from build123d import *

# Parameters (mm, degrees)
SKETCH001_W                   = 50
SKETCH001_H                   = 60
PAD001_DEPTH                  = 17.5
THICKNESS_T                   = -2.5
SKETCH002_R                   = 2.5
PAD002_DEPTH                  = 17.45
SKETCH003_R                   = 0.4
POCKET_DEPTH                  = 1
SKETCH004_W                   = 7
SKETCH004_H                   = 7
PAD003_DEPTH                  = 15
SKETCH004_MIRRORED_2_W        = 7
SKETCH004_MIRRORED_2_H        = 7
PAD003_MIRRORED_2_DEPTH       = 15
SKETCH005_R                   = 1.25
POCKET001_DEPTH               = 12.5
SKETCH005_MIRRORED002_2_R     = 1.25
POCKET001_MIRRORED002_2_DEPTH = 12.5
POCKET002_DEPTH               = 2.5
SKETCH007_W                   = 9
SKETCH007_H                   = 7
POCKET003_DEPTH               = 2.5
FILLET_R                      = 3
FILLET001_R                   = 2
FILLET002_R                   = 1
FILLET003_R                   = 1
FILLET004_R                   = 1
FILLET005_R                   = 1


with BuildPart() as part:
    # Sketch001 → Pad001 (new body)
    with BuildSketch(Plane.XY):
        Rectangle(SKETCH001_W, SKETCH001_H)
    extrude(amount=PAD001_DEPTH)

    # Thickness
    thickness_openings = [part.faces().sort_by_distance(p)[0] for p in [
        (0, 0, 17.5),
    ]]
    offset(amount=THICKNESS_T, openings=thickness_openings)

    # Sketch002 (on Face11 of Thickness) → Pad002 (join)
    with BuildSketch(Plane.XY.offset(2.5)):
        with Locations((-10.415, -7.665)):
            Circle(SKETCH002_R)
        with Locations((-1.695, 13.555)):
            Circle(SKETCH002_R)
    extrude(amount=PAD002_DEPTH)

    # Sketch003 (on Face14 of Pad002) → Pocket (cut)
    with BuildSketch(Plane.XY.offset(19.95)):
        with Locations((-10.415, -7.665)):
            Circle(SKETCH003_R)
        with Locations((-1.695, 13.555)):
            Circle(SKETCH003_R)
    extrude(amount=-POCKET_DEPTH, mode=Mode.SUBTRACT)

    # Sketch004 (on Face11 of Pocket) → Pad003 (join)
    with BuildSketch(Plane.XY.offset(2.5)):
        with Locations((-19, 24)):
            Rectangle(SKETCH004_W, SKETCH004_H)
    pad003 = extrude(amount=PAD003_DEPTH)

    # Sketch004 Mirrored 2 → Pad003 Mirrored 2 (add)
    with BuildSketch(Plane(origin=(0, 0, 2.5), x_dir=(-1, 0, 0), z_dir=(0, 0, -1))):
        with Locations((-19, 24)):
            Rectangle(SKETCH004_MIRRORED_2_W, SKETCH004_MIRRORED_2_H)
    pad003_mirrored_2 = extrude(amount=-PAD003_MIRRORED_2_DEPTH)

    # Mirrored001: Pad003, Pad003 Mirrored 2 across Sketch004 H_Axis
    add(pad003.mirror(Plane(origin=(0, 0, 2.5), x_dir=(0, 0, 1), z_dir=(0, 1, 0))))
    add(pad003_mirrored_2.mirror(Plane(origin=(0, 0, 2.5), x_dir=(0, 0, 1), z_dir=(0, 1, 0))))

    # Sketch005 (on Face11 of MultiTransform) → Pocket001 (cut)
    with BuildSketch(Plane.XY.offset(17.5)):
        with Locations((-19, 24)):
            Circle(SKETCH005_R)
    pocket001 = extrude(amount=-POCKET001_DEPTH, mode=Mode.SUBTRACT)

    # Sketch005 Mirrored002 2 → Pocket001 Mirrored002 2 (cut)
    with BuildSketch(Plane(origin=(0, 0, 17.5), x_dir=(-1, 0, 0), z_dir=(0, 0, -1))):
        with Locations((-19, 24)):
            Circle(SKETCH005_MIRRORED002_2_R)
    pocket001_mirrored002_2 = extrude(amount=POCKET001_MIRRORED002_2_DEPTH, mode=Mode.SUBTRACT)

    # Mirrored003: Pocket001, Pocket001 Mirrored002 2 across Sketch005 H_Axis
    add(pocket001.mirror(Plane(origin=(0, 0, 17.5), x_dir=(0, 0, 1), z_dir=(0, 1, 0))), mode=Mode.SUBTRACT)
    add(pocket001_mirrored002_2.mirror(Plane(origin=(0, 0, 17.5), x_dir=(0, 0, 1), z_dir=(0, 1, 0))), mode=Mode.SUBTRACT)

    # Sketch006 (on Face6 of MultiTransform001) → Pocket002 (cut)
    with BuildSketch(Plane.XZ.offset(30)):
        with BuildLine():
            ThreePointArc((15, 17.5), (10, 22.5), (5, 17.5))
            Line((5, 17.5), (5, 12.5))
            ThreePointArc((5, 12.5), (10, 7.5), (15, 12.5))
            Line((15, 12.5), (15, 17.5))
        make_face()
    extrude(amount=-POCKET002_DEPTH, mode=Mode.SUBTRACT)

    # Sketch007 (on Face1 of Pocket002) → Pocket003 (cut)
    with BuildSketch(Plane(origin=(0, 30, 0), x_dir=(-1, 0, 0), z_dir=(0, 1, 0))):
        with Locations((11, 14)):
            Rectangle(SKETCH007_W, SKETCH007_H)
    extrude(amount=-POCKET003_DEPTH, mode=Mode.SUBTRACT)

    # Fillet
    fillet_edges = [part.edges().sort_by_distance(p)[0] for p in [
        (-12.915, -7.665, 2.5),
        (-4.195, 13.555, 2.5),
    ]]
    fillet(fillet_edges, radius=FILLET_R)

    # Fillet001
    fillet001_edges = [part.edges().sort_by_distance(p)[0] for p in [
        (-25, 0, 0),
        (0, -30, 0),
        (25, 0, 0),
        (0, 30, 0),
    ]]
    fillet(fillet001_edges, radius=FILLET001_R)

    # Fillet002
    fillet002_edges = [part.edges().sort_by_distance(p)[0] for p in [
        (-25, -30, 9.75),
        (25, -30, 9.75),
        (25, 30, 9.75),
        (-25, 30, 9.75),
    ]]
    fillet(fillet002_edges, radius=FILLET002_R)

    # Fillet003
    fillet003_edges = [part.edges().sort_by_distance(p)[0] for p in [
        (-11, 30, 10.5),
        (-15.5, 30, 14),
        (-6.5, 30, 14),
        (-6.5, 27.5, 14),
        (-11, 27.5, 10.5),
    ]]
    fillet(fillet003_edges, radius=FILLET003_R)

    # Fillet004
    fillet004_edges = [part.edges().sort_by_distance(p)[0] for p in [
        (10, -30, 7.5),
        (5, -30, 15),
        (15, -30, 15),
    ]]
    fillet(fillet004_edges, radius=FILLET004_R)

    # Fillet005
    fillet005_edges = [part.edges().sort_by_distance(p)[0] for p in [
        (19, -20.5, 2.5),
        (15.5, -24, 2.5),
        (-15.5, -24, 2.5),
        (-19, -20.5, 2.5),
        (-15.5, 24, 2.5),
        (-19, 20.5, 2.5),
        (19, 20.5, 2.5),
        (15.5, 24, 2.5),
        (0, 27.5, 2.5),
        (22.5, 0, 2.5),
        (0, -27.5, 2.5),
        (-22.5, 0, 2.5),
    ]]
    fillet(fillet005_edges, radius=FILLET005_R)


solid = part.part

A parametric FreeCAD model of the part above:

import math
import FreeCAD as App
import Part
import Sketcher


def edges_at(feature, points):
    """Names of the edges that pass closest to the given points."""
    edges = feature.Shape.Edges
    near = lambda p: min(range(len(edges)), key=lambda i: edges[i].distToShape(Part.Vertex(*p))[0])
    return sorted({f"Edge{near(p) + 1}" for p in points})


def faces_at(feature, points):
    """Names of the faces that lie closest to the given points."""
    faces = feature.Shape.Faces
    near = lambda p: min(range(len(faces)), key=lambda i: faces[i].distToShape(Part.Vertex(*p))[0])
    return sorted({f"Face{near(p) + 1}" for p in points})

doc = App.newDocument("Part")
params = doc.addObject("Spreadsheet::Sheet", "Params")
for row, (alias, value) in enumerate([
    ("sketch1_width", "50 mm"),
    ("sketch1_height", "60 mm"),
    ("pad1_length", "17.5 mm"),
    ("thickness_wall", "2.5 mm"),
    ("sketch2_diameter", "5 mm"),
    ("pad2_length", "17.45 mm"),
    ("sketch3_diameter", "0.8 mm"),
    ("pocket1_length", "1 mm"),
    ("sketch4_width", "7 mm"),
    ("pad3_length", "15 mm"),
    ("sketch5_width", "7 mm"),
    ("pad4_length", "15 mm"),
    ("sketch6_diameter", "2.5 mm"),
    ("pocket2_length", "12.5 mm"),
    ("sketch7_diameter", "2.5 mm"),
    ("pocket3_length", "12.5 mm"),
    ("sketch8_radius", "5 mm"),
    ("sketch8_height", "5 mm"),
    ("pocket4_length", "2.5 mm"),
    ("sketch9_width", "9 mm"),
    ("sketch9_height", "7 mm"),
    ("pocket5_length", "2.5 mm"),
    ("fillet_radius", "3 mm"),
    ("fillet2_radius", "2 mm"),
    ("fillet3_radius", "1 mm"),
    ("fillet4_radius", "1 mm"),
    ("fillet5_radius", "1 mm"),
    ("fillet6_radius", "1 mm"),
], start=1):
    params.set(f"A{row}", alias)
    params.set(f"B{row}", "=" + value)
    params.setAlias(f"B{row}", alias)

body = doc.addObject("PartDesign::Body", "Body")

# Sketch on XY plane
sketch1 = doc.addObject("Sketcher::SketchObject", "Sketch")
body.addObject(sketch1)
sketch1.AttachmentSupport = (doc.XY_Plane, [""])
sketch1.MapMode = "FlatFace"
sketch1.addGeometry([
    Part.LineSegment(App.Vector(-25, 30, 0), App.Vector(-25, -30, 0)),
    Part.LineSegment(App.Vector(-25, -30, 0), App.Vector(25, -30, 0)),
    Part.LineSegment(App.Vector(25, -30, 0), App.Vector(25, 30, 0)),
    Part.LineSegment(App.Vector(25, 30, 0), App.Vector(-25, 30, 0)),
], False)
sketch1.addConstraint([
    Sketcher.Constraint("Coincident", 0, 2, 1, 1),
    Sketcher.Constraint("Coincident", 1, 2, 2, 1),
    Sketcher.Constraint("Coincident", 2, 2, 3, 1),
    Sketcher.Constraint("Coincident", 3, 2, 0, 1),
    Sketcher.Constraint("Vertical", 0),
    Sketcher.Constraint("Horizontal", 1),
    Sketcher.Constraint("Vertical", 2),
    Sketcher.Constraint("Horizontal", 3),
    Sketcher.Constraint("Symmetric", 0, 2, 2, 2, -1, 1),
    Sketcher.Constraint("DistanceX", 1, 1, 1, 2, 50.0),
    Sketcher.Constraint("DistanceY", 0, 2, 0, 1, 60.0),
])
sketch1.setExpression("Constraints[9]", "Params.sketch1_width")
sketch1.setExpression("Constraints[10]", "Params.sketch1_height")
pad1 = doc.addObject("PartDesign::Pad", "Pad")
body.addObject(pad1)
pad1.Profile = sketch1
pad1.setExpression("Length", "Params.pad1_length")
doc.recompute()

thickness = doc.addObject("PartDesign::Thickness", "Thickness")
body.addObject(thickness)
thickness.Base = (pad1, faces_at(pad1, [(0, 0, 17.5)]))
thickness.setExpression("Value", "Params.thickness_wall")
thickness.Reversed = True
thickness.Join = "Arc"

# Sketch on XY plane
sketch2 = doc.addObject("Sketcher::SketchObject", "Sketch001")
body.addObject(sketch2)
sketch2.AttachmentSupport = (doc.XY_Plane, [""])
sketch2.MapMode = "FlatFace"
sketch2.AttachmentOffset = App.Placement(App.Vector(0, 0, 2.5), App.Rotation())
sketch2.addGeometry([
    Part.Circle(App.Vector(-10.415, -7.665, 0), App.Vector(0, 0, 1), 2.5),
    Part.Circle(App.Vector(-1.695, 13.555, 0), App.Vector(0, 0, 1), 2.5),
], False)
sketch2.addConstraint([
    Sketcher.Constraint("Equal", 0, 1),
    Sketcher.Constraint("Diameter", 0, 5.0),
    Sketcher.Constraint("DistanceX", 0, 3, 1, 3, 8.72),
    Sketcher.Constraint("DistanceY", 0, 3, 1, 3, 21.22),
    Sketcher.Constraint("DistanceX", 0, 3, -1, 1, 10.415),
    Sketcher.Constraint("DistanceY", 0, 3, -1, 1, 7.665),
])
sketch2.setExpression("Constraints[1]", "Params.sketch2_diameter")
pad2 = doc.addObject("PartDesign::Pad", "Pad001")
body.addObject(pad2)
pad2.Profile = sketch2
pad2.setExpression("Length", "Params.pad2_length")

# Sketch on XY plane
sketch3 = doc.addObject("Sketcher::SketchObject", "Sketch002")
body.addObject(sketch3)
sketch3.AttachmentSupport = (doc.XY_Plane, [""])
sketch3.MapMode = "FlatFace"
sketch3.AttachmentOffset = App.Placement(App.Vector(0, 0, 19.95), App.Rotation())
sketch3.addGeometry([
    Part.Circle(App.Vector(-10.415, -7.665, 0), App.Vector(0, 0, 1), 0.4),
    Part.Circle(App.Vector(-1.695, 13.555, 0), App.Vector(0, 0, 1), 0.4),
], False)
sketch3.addConstraint([
    Sketcher.Constraint("Equal", 0, 1),
    Sketcher.Constraint("Diameter", 0, 0.8),
    Sketcher.Constraint("DistanceX", 0, 3, 1, 3, 8.72),
    Sketcher.Constraint("DistanceY", 0, 3, 1, 3, 21.22),
    Sketcher.Constraint("DistanceX", 0, 3, -1, 1, 10.415),
    Sketcher.Constraint("DistanceY", 0, 3, -1, 1, 7.665),
])
sketch3.setExpression("Constraints[1]", "Params.sketch3_diameter")
pocket1 = doc.addObject("PartDesign::Pocket", "Pocket")
body.addObject(pocket1)
pocket1.Profile = sketch3
pocket1.setExpression("Length", "Params.pocket1_length")

# Sketch on XY plane
sketch4 = doc.addObject("Sketcher::SketchObject", "Sketch003")
body.addObject(sketch4)
sketch4.AttachmentSupport = (doc.XY_Plane, [""])
sketch4.MapMode = "FlatFace"
sketch4.AttachmentOffset = App.Placement(App.Vector(0, 0, 2.5), App.Rotation())
sketch4.addGeometry([
    Part.LineSegment(App.Vector(-22.5, 27.5, 0), App.Vector(-22.5, 20.5, 0)),
    Part.LineSegment(App.Vector(-22.5, 20.5, 0), App.Vector(-15.5, 20.5, 0)),
    Part.LineSegment(App.Vector(-15.5, 20.5, 0), App.Vector(-15.5, 27.5, 0)),
    Part.LineSegment(App.Vector(-15.5, 27.5, 0), App.Vector(-22.5, 27.5, 0)),
], False)
sketch4.addConstraint([
    Sketcher.Constraint("Coincident", 0, 2, 1, 1),
    Sketcher.Constraint("Coincident", 1, 2, 2, 1),
    Sketcher.Constraint("Coincident", 2, 2, 3, 1),
    Sketcher.Constraint("Coincident", 3, 2, 0, 1),
    Sketcher.Constraint("Vertical", 0),
    Sketcher.Constraint("Horizontal", 1),
    Sketcher.Constraint("Vertical", 2),
    Sketcher.Constraint("Horizontal", 3),
    Sketcher.Constraint("Equal", 3, 0),
    Sketcher.Constraint("DistanceX", 1, 1, 1, 2, 7.0),
    Sketcher.Constraint("DistanceX", 0, 2, -1, 1, 22.5),
    Sketcher.Constraint("DistanceY", -1, 1, 0, 2, 20.5),
])
sketch4.setExpression("Constraints[9]", "Params.sketch4_width")
pad3 = doc.addObject("PartDesign::Pad", "Pad002")
body.addObject(pad3)
pad3.Profile = sketch4
pad3.setExpression("Length", "Params.pad3_length")

# Sketch on XY plane
sketch5 = doc.addObject("Sketcher::SketchObject", "Sketch004")
body.addObject(sketch5)
sketch5.AttachmentSupport = (doc.XY_Plane, [""])
sketch5.MapMode = "FlatFace"
sketch5.AttachmentOffset = App.Placement(App.Vector(0, 0, 2.5), App.Rotation())
sketch5.addGeometry([
    Part.LineSegment(App.Vector(22.5, 27.5, 0), App.Vector(22.5, 20.5, 0)),
    Part.LineSegment(App.Vector(22.5, 20.5, 0), App.Vector(15.5, 20.5, 0)),
    Part.LineSegment(App.Vector(15.5, 20.5, 0), App.Vector(15.5, 27.5, 0)),
    Part.LineSegment(App.Vector(15.5, 27.5, 0), App.Vector(22.5, 27.5, 0)),
], False)
sketch5.addConstraint([
    Sketcher.Constraint("Coincident", 0, 2, 1, 1),
    Sketcher.Constraint("Coincident", 1, 2, 2, 1),
    Sketcher.Constraint("Coincident", 2, 2, 3, 1),
    Sketcher.Constraint("Coincident", 3, 2, 0, 1),
    Sketcher.Constraint("Vertical", 0),
    Sketcher.Constraint("Horizontal", 1),
    Sketcher.Constraint("Vertical", 2),
    Sketcher.Constraint("Horizontal", 3),
    Sketcher.Constraint("Equal", 3, 0),
    Sketcher.Constraint("DistanceX", 1, 2, 1, 1, 7.0),
    Sketcher.Constraint("DistanceX", -1, 1, 0, 2, 22.5),
    Sketcher.Constraint("DistanceY", -1, 1, 0, 2, 20.5),
])
sketch5.setExpression("Constraints[9]", "Params.sketch5_width")
pad4 = doc.addObject("PartDesign::Pad", "Pad003")
body.addObject(pad4)
pad4.Profile = sketch5
pad4.setExpression("Length", "Params.pad4_length")
doc.recompute()

mirrored = doc.addObject("PartDesign::Mirrored", "Mirrored")
body.addObject(mirrored)
mirrored.Originals = [pad3, pad4]
mirrored.MirrorPlane = (doc.XZ_Plane, [""])
body.Tip = mirrored

# Sketch on XY plane
sketch6 = doc.addObject("Sketcher::SketchObject", "Sketch005")
body.addObject(sketch6)
sketch6.AttachmentSupport = (doc.XY_Plane, [""])
sketch6.MapMode = "FlatFace"
sketch6.AttachmentOffset = App.Placement(App.Vector(0, 0, 17.5), App.Rotation())
sketch6.addGeometry(Part.Circle(App.Vector(-19, 24, 0), App.Vector(0, 0, 1), 1.25), False)
sketch6.addConstraint([
    Sketcher.Constraint("Diameter", 0, 2.5),
    Sketcher.Constraint("DistanceX", 0, 3, -1, 1, 19.0),
    Sketcher.Constraint("DistanceY", -1, 1, 0, 3, 24.0),
])
sketch6.setExpression("Constraints[0]", "Params.sketch6_diameter")
pocket2 = doc.addObject("PartDesign::Pocket", "Pocket001")
body.addObject(pocket2)
pocket2.Profile = sketch6
pocket2.setExpression("Length", "Params.pocket2_length")

# Sketch on XY plane
sketch7 = doc.addObject("Sketcher::SketchObject", "Sketch006")
body.addObject(sketch7)
sketch7.AttachmentSupport = (doc.XY_Plane, [""])
sketch7.MapMode = "FlatFace"
sketch7.AttachmentOffset = App.Placement(App.Vector(0, 0, 17.5), App.Rotation())
sketch7.addGeometry(Part.Circle(App.Vector(19, 24, 0), App.Vector(0, 0, 1), 1.25), False)
sketch7.addConstraint([
    Sketcher.Constraint("Diameter", 0, 2.5),
    Sketcher.Constraint("DistanceX", -1, 1, 0, 3, 19.0),
    Sketcher.Constraint("DistanceY", -1, 1, 0, 3, 24.0),
])
sketch7.setExpression("Constraints[0]", "Params.sketch7_diameter")
pocket3 = doc.addObject("PartDesign::Pocket", "Pocket002")
body.addObject(pocket3)
pocket3.Profile = sketch7
pocket3.setExpression("Length", "Params.pocket3_length")
doc.recompute()

mirrored2 = doc.addObject("PartDesign::Mirrored", "Mirrored001")
body.addObject(mirrored2)
mirrored2.Originals = [pocket2, pocket3]
mirrored2.MirrorPlane = (doc.XZ_Plane, [""])
body.Tip = mirrored2

# Sketch on XZ plane
sketch8 = doc.addObject("Sketcher::SketchObject", "Sketch007")
body.addObject(sketch8)
sketch8.AttachmentSupport = (doc.XZ_Plane, [""])
sketch8.MapMode = "FlatFace"
sketch8.AttachmentOffset = App.Placement(App.Vector(0, 0, 30), App.Rotation())
sketch8.addGeometry([
    Part.ArcOfCircle(Part.Circle(App.Vector(10, 17.5, 0), App.Vector(0, 0, 1), 5), math.radians(0), math.radians(180)),
    Part.LineSegment(App.Vector(5, 17.5, 0), App.Vector(5, 12.5, 0)),
    Part.ArcOfCircle(Part.Circle(App.Vector(10, 12.5, 0), App.Vector(0, 0, 1), 5), math.radians(180), math.radians(360)),
    Part.LineSegment(App.Vector(15, 12.5, 0), App.Vector(15, 17.5, 0)),
], False)
sketch8.addConstraint([
    Sketcher.Constraint("Tangent", 0, 2, 1, 1),
    Sketcher.Constraint("Tangent", 1, 2, 2, 1),
    Sketcher.Constraint("Tangent", 2, 2, 3, 1),
    Sketcher.Constraint("Tangent", 3, 2, 0, 1),
    Sketcher.Constraint("Vertical", 1),
    Sketcher.Constraint("Vertical", 3),
    Sketcher.Constraint("Radius", 0, 5.0),
    Sketcher.Constraint("DistanceY", 1, 2, 1, 1, 5.0),
    Sketcher.Constraint("DistanceX", -1, 1, 0, 3, 10.0),
    Sketcher.Constraint("DistanceY", -1, 1, 0, 3, 17.5),
])
sketch8.setExpression("Constraints[6]", "Params.sketch8_radius")
sketch8.setExpression("Constraints[7]", "Params.sketch8_height")
pocket4 = doc.addObject("PartDesign::Pocket", "Pocket003")
body.addObject(pocket4)
pocket4.Profile = sketch8
pocket4.setExpression("Length", "Params.pocket4_length")

# Sketch on XZ plane
sketch9 = doc.addObject("Sketcher::SketchObject", "Sketch008")
body.addObject(sketch9)
sketch9.AttachmentSupport = (doc.XZ_Plane, [""])
sketch9.MapMode = "FlatFace"
sketch9.AttachmentOffset = App.Placement(App.Vector(0, 0, -30), App.Rotation())
sketch9.addGeometry([
    Part.LineSegment(App.Vector(-6.5, 17.5, 0), App.Vector(-6.5, 10.5, 0)),
    Part.LineSegment(App.Vector(-6.5, 10.5, 0), App.Vector(-15.5, 10.5, 0)),
    Part.LineSegment(App.Vector(-15.5, 10.5, 0), App.Vector(-15.5, 17.5, 0)),
    Part.LineSegment(App.Vector(-15.5, 17.5, 0), App.Vector(-6.5, 17.5, 0)),
], False)
sketch9.addConstraint([
    Sketcher.Constraint("Coincident", 0, 2, 1, 1),
    Sketcher.Constraint("Coincident", 1, 2, 2, 1),
    Sketcher.Constraint("Coincident", 2, 2, 3, 1),
    Sketcher.Constraint("Coincident", 3, 2, 0, 1),
    Sketcher.Constraint("Vertical", 0),
    Sketcher.Constraint("Horizontal", 1),
    Sketcher.Constraint("Vertical", 2),
    Sketcher.Constraint("Horizontal", 3),
    Sketcher.Constraint("DistanceX", 1, 2, 1, 1, 9.0),
    Sketcher.Constraint("DistanceY", 0, 2, 0, 1, 7.0),
    Sketcher.Constraint("DistanceX", 0, 2, -1, 1, 6.5),
    Sketcher.Constraint("DistanceY", -1, 1, 0, 2, 10.5),
])
sketch9.setExpression("Constraints[8]", "Params.sketch9_width")
sketch9.setExpression("Constraints[9]", "Params.sketch9_height")
pocket5 = doc.addObject("PartDesign::Pocket", "Pocket004")
body.addObject(pocket5)
pocket5.Profile = sketch9
pocket5.setExpression("Length", "Params.pocket5_length")
pocket5.Reversed = True
doc.recompute()

fillet = doc.addObject("PartDesign::Fillet", "Fillet")
body.addObject(fillet)
fillet.Base = (pocket5, edges_at(pocket5, [(-12.915, -7.665, 2.5), (-4.195, 13.555, 2.5)]))
fillet.setExpression("Radius", "Params.fillet_radius")
doc.recompute()

fillet2 = doc.addObject("PartDesign::Fillet", "Fillet001")
body.addObject(fillet2)
fillet2.Base = (fillet, edges_at(fillet, [
    (-25, 0, 0),
    (0, -30, 0),
    (25, 0, 0),
    (0, 30, 0),
]))
fillet2.setExpression("Radius", "Params.fillet2_radius")
doc.recompute()

fillet3 = doc.addObject("PartDesign::Fillet", "Fillet002")
body.addObject(fillet3)
fillet3.Base = (fillet2, edges_at(fillet2, [
    (-25, -30, 9.75),
    (25, -30, 9.75),
    (25, 30, 9.75),
    (-25, 30, 9.75),
]))
fillet3.setExpression("Radius", "Params.fillet3_radius")
doc.recompute()

fillet4 = doc.addObject("PartDesign::Fillet", "Fillet003")
body.addObject(fillet4)
fillet4.Base = (fillet3, edges_at(fillet3, [
    (-11, 30, 10.5),
    (-15.5, 30, 14),
    (-6.5, 30, 14),
    (-6.5, 27.5, 14),
    (-11, 27.5, 10.5),
]))
fillet4.setExpression("Radius", "Params.fillet4_radius")
doc.recompute()

fillet5 = doc.addObject("PartDesign::Fillet", "Fillet004")
body.addObject(fillet5)
fillet5.Base = (fillet4, edges_at(fillet4, [(10, -30, 7.5), (5, -30, 15), (15, -30, 15)]))
fillet5.setExpression("Radius", "Params.fillet5_radius")
doc.recompute()

fillet6 = doc.addObject("PartDesign::Fillet", "Fillet005")
body.addObject(fillet6)
fillet6.Base = (fillet5, edges_at(fillet5, [
    (19, -20.5, 2.5),
    (15.5, -24, 2.5),
    (-15.5, -24, 2.5),
    (-19, -20.5, 2.5),
    (-15.5, 24, 2.5),
    (-19, 20.5, 2.5),
    (19, 20.5, 2.5),
    (15.5, 24, 2.5),
    (0, 27.5, 2.5),
    (22.5, 0, 2.5),
    (0, -27.5, 2.5),
    (-22.5, 0, 2.5),
]))
fillet6.setExpression("Radius", "Params.fillet6_radius")

doc.recompute()
